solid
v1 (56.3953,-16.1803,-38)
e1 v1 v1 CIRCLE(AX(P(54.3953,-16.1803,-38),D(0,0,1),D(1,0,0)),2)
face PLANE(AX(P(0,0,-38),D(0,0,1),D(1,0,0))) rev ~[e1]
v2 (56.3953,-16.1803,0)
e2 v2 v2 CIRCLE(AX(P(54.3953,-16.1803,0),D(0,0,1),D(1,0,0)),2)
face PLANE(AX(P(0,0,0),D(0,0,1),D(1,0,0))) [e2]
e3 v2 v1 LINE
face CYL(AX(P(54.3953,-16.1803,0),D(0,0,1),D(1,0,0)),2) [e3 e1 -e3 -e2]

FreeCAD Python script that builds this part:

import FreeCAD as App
import Part
import Sketcher

V = App.Vector
Q = App.Units.Quantity

doc = App.newDocument("Part")
body = doc.addObject("PartDesign::Body", "Body")

# Sketch on XY plane
sketch1 = body.newObject("Sketcher::SketchObject", "Sketch")
sketch1.AttachmentSupport = (doc.getObject("XY_Plane"), [""])
sketch1.MapMode = "FlatFace"
sketch1.addGeometry(Part.Circle(V(54.4, -16.2, 0), V(0, 0, 1), 2), False)
sketch1.addConstraint([
    Sketcher.Constraint("Diameter", 0, Q("4 mm")),
    Sketcher.Constraint("DistanceX", -1, 1, 0, 3, Q("54.3953 mm")),
    Sketcher.Constraint("DistanceY", 0, 3, -1, 1, Q("16.1803 mm")),
])
pad1 = body.newObject("PartDesign::Pad", "Pad")
pad1.Profile = sketch1
pad1.Length = 38
pad1.Reversed = True

doc.recompute()
